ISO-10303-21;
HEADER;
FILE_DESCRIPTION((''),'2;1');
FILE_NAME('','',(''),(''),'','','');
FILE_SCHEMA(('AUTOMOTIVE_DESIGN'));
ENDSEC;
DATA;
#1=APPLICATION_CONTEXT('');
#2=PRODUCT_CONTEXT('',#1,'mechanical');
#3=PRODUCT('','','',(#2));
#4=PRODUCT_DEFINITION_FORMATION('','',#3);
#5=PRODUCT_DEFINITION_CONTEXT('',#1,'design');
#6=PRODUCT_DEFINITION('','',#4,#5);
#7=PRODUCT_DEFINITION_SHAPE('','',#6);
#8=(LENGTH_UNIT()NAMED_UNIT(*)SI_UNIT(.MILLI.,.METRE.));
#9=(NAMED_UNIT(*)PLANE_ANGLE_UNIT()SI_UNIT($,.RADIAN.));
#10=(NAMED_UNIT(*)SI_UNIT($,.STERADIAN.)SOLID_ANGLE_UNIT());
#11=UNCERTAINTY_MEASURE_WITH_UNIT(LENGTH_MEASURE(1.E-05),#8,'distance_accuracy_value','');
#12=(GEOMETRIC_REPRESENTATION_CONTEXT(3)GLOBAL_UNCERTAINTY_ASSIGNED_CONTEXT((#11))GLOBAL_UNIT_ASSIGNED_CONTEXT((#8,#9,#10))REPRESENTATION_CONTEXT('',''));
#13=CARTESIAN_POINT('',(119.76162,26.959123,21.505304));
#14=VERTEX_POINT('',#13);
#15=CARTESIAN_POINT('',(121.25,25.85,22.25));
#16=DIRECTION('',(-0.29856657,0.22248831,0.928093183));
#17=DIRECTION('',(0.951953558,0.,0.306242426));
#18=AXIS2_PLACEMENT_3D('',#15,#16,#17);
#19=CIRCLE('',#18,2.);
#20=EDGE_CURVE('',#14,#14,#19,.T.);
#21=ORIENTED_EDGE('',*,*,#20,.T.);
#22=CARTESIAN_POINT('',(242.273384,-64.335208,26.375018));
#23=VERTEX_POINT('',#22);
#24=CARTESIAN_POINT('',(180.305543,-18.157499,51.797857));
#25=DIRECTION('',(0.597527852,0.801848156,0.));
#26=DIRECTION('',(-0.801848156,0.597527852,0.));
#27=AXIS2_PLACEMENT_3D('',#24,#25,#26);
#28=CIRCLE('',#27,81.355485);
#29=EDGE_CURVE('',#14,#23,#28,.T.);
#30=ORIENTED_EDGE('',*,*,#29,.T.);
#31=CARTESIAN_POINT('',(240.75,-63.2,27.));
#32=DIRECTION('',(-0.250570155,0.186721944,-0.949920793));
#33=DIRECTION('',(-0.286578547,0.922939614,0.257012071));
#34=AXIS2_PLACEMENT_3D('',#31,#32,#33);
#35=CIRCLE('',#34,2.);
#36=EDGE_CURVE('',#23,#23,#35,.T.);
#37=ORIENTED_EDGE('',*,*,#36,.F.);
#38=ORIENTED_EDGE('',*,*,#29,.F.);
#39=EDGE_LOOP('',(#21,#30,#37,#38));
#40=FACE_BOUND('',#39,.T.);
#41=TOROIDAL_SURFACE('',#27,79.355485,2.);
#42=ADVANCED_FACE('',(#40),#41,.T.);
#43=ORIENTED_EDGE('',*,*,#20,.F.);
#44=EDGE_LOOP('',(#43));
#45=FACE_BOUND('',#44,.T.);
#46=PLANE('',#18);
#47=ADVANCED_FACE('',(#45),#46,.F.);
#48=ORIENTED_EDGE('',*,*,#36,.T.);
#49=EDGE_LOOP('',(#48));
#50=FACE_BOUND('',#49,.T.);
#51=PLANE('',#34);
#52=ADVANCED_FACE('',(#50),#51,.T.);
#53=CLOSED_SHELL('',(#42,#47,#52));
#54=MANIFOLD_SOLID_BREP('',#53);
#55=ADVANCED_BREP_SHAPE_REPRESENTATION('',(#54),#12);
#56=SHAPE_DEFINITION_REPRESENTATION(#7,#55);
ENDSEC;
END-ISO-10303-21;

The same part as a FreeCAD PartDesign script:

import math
import FreeCAD as App
import Part
import Sketcher

doc = App.newDocument("Part")
body = doc.addObject("PartDesign::Body", "Body")

sketch1 = body.newObject("Sketcher::SketchObject", "Sketch")
sketch1.Placement = App.Placement(App.Vector(121.25, 25.85, 22.25), App.Rotation(App.Vector(0.951953558, 0, 0.306242426), App.Vector(0.06813536, 0.974935358, -0.211798538), App.Vector(-0.29856657, 0.22248831, 0.928093183), "ZXY"))
sketch1.addGeometry(Part.Circle(App.Vector(0, 0, 0), App.Vector(0, 0, 1), 2), False)
sketch1.addConstraint(Sketcher.Constraint("Coincident", 0, 3, -1, 1))
sketch1.addConstraint(Sketcher.Constraint("Diameter", 0, 4.0))

sketch2 = body.newObject("Sketcher::SketchObject", "Sketch001")
sketch2.Placement = App.Placement(App.Vector(55.676466, 74.714629, 0), App.Rotation(App.Vector(0.801848156, -0.597527852, 0), App.Vector(0, 0, 0.999999999), App.Vector(-0.597527852, -0.801848156, 0), "ZXY"))
sketch2.addGeometry(Part.ArcOfCircle(Part.Circle(App.Vector(155, 52, 0), App.Vector(0, 0, 1), 79), math.radians(-18), math.radians(202)), False)
sketch2.addConstraint(Sketcher.Constraint("DistanceY", -1, 1, 0, 1, 27.0))
sketch2.addConstraint(Sketcher.Constraint("DistanceY", -1, 1, 0, 2, 22.25))
sketch2.addConstraint(Sketcher.Constraint("Radius", 0, 79.355485))
sketch2.addConstraint(Sketcher.Constraint("DistanceX", -1, 1, 0, 3, 155.427279))
sketch2.addConstraint(Sketcher.Constraint("DistanceX", 0, 2, 0, 1, 149.03071))
doc.recompute()

additivepipe = body.newObject("PartDesign::AdditivePipe", "AdditivePipe")
additivepipe.Profile = sketch1
additivepipe.Spine = (sketch2, ["Edge1"])

doc.recompute()
